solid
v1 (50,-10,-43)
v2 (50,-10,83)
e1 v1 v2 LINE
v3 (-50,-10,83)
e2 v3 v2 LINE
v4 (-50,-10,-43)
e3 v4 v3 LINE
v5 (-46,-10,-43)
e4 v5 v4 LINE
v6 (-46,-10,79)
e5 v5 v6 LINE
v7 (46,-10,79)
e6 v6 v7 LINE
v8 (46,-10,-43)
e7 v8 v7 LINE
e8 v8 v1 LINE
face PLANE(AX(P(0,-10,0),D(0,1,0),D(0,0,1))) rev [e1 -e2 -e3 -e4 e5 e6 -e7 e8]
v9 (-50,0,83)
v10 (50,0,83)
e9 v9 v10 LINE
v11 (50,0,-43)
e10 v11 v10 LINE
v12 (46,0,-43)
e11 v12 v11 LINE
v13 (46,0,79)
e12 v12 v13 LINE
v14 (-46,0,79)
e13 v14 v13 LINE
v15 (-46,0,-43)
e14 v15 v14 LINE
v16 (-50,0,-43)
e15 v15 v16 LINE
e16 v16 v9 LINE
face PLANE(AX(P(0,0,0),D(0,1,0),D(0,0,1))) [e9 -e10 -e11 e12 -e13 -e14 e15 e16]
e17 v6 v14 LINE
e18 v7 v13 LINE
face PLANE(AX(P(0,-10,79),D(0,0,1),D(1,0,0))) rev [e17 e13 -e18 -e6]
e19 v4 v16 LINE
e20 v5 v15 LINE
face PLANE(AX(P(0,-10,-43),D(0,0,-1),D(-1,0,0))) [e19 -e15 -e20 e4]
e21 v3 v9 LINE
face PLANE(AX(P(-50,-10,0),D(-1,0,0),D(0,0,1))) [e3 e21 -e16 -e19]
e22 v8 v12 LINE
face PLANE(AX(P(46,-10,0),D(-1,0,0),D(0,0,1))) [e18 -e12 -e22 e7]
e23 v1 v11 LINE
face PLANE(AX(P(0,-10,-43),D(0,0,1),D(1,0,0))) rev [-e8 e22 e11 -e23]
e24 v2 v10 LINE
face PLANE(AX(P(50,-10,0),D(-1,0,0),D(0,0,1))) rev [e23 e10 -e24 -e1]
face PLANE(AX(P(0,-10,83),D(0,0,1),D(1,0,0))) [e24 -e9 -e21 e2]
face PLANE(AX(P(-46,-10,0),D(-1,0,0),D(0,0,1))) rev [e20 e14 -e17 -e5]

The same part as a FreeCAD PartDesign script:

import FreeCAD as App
import Part
import Sketcher
from FreeCAD import Vector


def add_polygon(sketch, points):
    """Adds a closed chain of lines whose ends are joined by coincident constraints."""
    first, n = sketch.GeometryCount, len(points)
    for a, b in zip(points, points[1:] + points[:1]):
        sketch.addGeometry(Part.LineSegment(App.Vector(*a, 0), App.Vector(*b, 0)), False)
    for i in range(n):
        sketch.addConstraint(Sketcher.Constraint("Coincident", first + i, 2, first + (i + 1) % n, 1))

doc = App.newDocument("Part")
body = doc.addObject("PartDesign::Body", "Body")

# Sketch on XZ plane
sketch1 = doc.addObject("Sketcher::SketchObject", "Sketch")
body.addObject(sketch1)
sketch1.AttachmentSupport = (doc.XZ_Plane, [""])
sketch1.MapMode = "FlatFace"
add_polygon(sketch1, [(50, -43), (46, -43), (46, 79), (-46, 79), (-46, -43), (-50, -43), (-50, 83), (50, 83)])  # lines 0-7
sketch1.addConstraint([
    Sketcher.Constraint("Horizontal", 0),
    Sketcher.Constraint("Vertical", 1),
    Sketcher.Constraint("Horizontal", 2),
    Sketcher.Constraint("Vertical", 3),
    Sketcher.Constraint("Horizontal", 4),
    Sketcher.Constraint("Vertical", 5),
    Sketcher.Constraint("Horizontal", 6),
    Sketcher.Constraint("Vertical", 7),
    Sketcher.Constraint("Symmetric", 0, 2, 3, 2, -2),
    Sketcher.Constraint("Equal", 0, 4),
    Sketcher.Constraint("DistanceX", 0, 2, 0, 1, 4.0),
    Sketcher.Constraint("DistanceX", 2, 2, 2, 1, 92.0),
    Sketcher.Constraint("DistanceY", 1, 1, 1, 2, 122.0),
    Sketcher.Constraint("DistanceY", 5, 1, 5, 2, 126.0),
    Sketcher.Constraint("DistanceY", 0, 2, -1, 1, 43.0),
])
pad1 = doc.addObject("PartDesign::Pad", "Pad")
body.addObject(pad1)
pad1.Profile = sketch1
pad1.Length = 10

doc.recompute()
